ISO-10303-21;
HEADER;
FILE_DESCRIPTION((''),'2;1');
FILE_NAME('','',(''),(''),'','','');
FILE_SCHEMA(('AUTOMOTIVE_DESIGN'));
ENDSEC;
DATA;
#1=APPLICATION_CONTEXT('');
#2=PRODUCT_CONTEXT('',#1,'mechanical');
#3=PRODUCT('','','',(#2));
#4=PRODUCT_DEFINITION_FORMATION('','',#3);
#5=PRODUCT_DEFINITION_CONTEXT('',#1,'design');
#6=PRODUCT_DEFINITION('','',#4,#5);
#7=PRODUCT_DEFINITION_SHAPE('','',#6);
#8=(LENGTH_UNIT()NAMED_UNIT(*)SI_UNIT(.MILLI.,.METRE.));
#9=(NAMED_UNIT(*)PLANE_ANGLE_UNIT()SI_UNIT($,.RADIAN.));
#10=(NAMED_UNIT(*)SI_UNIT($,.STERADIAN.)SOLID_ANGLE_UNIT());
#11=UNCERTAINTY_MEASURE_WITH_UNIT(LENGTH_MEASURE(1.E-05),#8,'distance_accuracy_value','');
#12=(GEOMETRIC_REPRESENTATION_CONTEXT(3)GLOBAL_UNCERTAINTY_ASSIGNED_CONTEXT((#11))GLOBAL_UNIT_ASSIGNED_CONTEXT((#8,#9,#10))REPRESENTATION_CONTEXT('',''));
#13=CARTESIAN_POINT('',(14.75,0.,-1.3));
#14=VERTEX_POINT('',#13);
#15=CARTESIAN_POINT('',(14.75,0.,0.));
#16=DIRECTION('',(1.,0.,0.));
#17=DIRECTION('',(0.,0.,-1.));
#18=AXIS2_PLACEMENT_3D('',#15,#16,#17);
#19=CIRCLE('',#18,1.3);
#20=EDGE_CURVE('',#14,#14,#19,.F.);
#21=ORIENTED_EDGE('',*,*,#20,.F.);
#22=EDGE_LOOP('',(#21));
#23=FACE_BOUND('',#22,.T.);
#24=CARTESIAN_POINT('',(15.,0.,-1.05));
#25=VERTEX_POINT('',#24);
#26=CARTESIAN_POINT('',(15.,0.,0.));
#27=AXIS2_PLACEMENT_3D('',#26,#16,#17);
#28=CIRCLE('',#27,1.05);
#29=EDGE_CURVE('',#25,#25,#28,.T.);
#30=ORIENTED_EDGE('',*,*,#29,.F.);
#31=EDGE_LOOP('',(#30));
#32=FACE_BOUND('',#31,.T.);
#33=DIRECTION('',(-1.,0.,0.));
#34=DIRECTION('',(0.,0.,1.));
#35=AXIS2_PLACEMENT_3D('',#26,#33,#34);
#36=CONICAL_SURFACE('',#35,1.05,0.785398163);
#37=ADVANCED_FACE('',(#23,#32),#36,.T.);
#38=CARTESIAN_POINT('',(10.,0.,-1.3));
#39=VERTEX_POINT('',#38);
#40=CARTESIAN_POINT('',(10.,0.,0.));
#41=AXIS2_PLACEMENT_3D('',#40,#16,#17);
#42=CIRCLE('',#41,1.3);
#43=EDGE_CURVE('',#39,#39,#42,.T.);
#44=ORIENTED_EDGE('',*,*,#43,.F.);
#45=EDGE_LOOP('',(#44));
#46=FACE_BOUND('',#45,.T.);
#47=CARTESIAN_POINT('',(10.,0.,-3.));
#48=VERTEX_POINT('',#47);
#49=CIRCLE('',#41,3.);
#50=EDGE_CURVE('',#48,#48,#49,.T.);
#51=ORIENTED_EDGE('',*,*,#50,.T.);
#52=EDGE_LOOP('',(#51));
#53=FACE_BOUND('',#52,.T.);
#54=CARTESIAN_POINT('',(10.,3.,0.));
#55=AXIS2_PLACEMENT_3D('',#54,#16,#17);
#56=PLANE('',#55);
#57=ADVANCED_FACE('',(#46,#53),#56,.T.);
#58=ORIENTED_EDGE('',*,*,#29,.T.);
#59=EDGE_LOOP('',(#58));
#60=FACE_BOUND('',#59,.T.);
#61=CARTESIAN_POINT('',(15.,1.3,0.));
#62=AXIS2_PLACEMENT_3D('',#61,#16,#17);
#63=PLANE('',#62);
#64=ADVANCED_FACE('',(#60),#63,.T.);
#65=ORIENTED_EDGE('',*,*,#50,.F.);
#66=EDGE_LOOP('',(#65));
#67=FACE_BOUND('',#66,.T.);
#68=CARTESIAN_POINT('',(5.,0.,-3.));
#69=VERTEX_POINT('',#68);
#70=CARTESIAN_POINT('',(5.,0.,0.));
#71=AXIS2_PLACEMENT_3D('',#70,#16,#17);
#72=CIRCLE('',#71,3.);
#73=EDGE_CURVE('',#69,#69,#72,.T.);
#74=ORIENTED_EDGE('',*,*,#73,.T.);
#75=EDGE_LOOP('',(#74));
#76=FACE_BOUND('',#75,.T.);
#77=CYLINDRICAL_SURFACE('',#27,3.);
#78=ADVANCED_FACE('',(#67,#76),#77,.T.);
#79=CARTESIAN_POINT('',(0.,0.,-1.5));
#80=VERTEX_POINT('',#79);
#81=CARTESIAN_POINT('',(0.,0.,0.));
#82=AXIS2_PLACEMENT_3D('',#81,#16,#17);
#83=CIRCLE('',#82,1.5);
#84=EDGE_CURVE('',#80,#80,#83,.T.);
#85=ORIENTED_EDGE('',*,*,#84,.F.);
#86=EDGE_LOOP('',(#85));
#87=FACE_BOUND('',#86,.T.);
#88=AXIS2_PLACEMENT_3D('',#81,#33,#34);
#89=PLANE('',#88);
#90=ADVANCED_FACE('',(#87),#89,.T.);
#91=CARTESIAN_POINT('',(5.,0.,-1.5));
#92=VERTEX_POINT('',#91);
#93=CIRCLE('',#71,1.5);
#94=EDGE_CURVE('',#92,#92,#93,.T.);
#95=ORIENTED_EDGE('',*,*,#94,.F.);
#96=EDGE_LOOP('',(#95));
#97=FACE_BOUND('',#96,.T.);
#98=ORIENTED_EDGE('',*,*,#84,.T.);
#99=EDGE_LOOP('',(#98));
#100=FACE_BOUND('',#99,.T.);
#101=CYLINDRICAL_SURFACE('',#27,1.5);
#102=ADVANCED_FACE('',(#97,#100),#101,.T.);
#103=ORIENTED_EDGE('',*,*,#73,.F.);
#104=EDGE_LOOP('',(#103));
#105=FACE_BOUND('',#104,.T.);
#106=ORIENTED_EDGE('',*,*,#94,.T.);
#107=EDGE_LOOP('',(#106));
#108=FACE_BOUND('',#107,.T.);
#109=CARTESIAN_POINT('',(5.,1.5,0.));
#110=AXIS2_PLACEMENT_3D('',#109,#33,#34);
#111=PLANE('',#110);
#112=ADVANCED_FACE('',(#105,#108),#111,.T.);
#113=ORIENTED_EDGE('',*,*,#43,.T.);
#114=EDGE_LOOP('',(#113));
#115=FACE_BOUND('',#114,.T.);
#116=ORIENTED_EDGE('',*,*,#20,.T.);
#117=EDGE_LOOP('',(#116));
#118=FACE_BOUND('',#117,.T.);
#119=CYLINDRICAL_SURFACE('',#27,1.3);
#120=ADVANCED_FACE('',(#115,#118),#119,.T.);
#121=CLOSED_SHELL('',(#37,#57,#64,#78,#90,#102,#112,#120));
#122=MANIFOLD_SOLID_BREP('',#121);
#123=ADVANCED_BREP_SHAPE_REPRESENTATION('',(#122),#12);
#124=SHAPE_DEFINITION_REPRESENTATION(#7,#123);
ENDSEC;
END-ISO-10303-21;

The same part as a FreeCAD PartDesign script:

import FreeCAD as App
import Part
import Sketcher
from FreeCAD import Vector


def edges_at(feature, points):
    """Names of the edges that pass closest to the given points."""
    edges = feature.Shape.Edges
    near = lambda p: min(range(len(edges)), key=lambda i: edges[i].distToShape(Part.Vertex(*p))[0])
    return sorted({f"Edge{near(p) + 1}" for p in points})


def add_polygon(sketch, points):
    """Adds a closed chain of lines whose ends are joined by coincident constraints."""
    first, n = sketch.GeometryCount, len(points)
    for a, b in zip(points, points[1:] + points[:1]):
        sketch.addGeometry(Part.LineSegment(App.Vector(*a, 0), App.Vector(*b, 0)), False)
    for i in range(n):
        sketch.addConstraint(Sketcher.Constraint("Coincident", first + i, 2, first + (i + 1) % n, 1))

doc = App.newDocument("Part")
body = doc.addObject("PartDesign::Body", "Body")

# Sketch on XY plane
sketch1 = body.newObject("Sketcher::SketchObject", "Sketch")
sketch1.AttachmentSupport = (doc.getObject("XY_Plane"), [""])
sketch1.MapMode = "FlatFace"
add_polygon(sketch1, [(0, 1.5), (0, 0), (15, 0), (15, 1.3), (10, 1.3), (10, 3), (5, 3), (5, 1.5)])  # lines 0-7
sketch1.addConstraint(Sketcher.Constraint("Vertical", 0))
sketch1.addConstraint(Sketcher.Constraint("Horizontal", 1))
sketch1.addConstraint(Sketcher.Constraint("Vertical", 2))
sketch1.addConstraint(Sketcher.Constraint("Horizontal", 3))
sketch1.addConstraint(Sketcher.Constraint("Vertical", 4))
sketch1.addConstraint(Sketcher.Constraint("Horizontal", 5))
sketch1.addConstraint(Sketcher.Constraint("Vertical", 6))
sketch1.addConstraint(Sketcher.Constraint("Horizontal", 7))
sketch1.addConstraint(Sketcher.Constraint("Coincident", 0, 2, -1, 1))
sketch1.addConstraint(Sketcher.Constraint("Equal", 3, 5))
sketch1.addConstraint(Sketcher.Constraint("Equal", 5, 7))
sketch1.addConstraint(Sketcher.Constraint("Equal", 0, 6))
sketch1.addConstraint(Sketcher.Constraint("DistanceX", 1, 1, 1, 2, 15.0))
sketch1.addConstraint(Sketcher.Constraint("DistanceY", 0, 2, 0, 1, 1.5))
sketch1.addConstraint(Sketcher.Constraint("DistanceY", 2, 1, 2, 2, 1.3))
revolution = body.newObject("PartDesign::Revolution", "Revolution")
revolution.Profile = sketch1
revolution.ReferenceAxis = (sketch1, ["H_Axis"])
revolution.Angle = 360
doc.recompute()

chamfer = body.newObject("PartDesign::Chamfer", "Chamfer")
chamfer.Base = (revolution, edges_at(revolution, [(15, 0, 1.3)]))
chamfer.Size = 0.25

doc.recompute()
